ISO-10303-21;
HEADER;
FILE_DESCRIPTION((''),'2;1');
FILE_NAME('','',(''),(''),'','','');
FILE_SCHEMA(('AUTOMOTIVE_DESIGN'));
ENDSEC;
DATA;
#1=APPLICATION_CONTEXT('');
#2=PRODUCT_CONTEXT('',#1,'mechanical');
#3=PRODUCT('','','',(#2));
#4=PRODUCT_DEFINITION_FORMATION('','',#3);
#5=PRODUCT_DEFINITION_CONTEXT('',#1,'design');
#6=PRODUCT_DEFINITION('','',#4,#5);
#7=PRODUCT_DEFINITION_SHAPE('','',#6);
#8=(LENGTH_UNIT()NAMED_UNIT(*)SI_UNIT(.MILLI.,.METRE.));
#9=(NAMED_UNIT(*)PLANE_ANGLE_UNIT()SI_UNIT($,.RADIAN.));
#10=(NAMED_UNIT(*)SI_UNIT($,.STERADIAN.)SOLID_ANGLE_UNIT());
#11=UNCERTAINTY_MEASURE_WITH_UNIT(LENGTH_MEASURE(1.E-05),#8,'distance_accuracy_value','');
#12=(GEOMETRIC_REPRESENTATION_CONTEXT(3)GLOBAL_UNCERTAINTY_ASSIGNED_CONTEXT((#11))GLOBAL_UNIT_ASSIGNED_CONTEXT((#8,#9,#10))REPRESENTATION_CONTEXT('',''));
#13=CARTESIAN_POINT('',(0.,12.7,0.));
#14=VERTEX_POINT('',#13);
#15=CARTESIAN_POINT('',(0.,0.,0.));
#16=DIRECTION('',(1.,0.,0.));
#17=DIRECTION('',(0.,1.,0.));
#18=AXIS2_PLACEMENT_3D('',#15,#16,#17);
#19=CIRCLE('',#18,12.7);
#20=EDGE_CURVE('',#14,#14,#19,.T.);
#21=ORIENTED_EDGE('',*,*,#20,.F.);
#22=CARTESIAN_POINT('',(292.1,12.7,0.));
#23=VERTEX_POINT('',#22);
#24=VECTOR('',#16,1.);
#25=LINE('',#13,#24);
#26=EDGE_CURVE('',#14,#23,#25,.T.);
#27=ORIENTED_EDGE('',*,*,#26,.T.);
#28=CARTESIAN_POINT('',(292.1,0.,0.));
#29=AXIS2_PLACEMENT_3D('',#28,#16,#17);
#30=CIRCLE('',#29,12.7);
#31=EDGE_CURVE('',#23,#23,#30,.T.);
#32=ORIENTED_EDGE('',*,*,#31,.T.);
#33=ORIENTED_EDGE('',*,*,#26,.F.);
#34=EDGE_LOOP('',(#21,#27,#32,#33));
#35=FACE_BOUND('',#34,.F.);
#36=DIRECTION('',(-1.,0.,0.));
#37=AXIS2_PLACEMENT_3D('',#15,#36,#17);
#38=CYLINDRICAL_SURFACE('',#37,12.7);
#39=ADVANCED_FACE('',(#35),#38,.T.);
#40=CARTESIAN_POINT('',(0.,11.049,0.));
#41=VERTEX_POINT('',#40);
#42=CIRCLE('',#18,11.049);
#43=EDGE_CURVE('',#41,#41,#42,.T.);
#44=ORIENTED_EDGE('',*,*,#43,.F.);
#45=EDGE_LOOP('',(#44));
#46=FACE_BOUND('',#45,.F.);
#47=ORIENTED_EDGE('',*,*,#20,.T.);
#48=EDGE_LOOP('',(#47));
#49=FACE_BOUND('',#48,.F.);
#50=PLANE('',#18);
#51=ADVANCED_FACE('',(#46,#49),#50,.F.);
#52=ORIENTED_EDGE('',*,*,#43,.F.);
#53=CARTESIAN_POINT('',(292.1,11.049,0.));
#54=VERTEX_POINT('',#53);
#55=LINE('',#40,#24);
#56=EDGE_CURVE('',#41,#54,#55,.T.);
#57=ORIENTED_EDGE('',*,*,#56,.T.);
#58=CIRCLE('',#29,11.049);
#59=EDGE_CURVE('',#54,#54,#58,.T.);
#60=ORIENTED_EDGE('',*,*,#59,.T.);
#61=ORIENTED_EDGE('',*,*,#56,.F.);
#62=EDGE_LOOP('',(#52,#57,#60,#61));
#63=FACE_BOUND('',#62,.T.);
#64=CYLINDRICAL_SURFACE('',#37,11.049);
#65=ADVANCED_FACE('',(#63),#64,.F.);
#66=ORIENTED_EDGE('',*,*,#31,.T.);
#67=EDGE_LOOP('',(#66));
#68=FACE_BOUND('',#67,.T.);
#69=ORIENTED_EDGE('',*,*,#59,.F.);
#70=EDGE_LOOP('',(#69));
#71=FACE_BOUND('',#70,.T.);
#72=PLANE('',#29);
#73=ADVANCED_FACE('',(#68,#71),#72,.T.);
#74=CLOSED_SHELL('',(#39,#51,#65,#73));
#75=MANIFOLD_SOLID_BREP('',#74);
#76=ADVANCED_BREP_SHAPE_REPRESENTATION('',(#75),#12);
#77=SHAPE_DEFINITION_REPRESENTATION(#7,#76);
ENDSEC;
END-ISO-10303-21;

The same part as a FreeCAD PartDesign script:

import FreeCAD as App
import Part
import Sketcher
from FreeCAD import Vector
Q = App.Units.Quantity

doc = App.newDocument("Part")
body = doc.addObject("PartDesign::Body", "Body")

sketch1 = body.newObject("Sketcher::SketchObject", "Sketch")
sketch1.AttachmentSupport = (doc.getObject("YZ_Plane"), [""])
sketch1.MapMode = "FlatFace"
sketch1.addGeometry([
    Part.Circle(Vector(0, 0, 0), Vector(0, 0, 1), 13),
    Part.Circle(Vector(0, 0, 0), Vector(0, 0, 1), 11),
], False)
sketch1.addConstraint([
    Sketcher.Constraint("Coincident", 0, 3, -1, 1),
    Sketcher.Constraint("Coincident", 1, 3, -1, 1),
    Sketcher.Constraint("Diameter", 0, Q("1 in")),
    Sketcher.Constraint("Diameter", 1, Q("0.87 in")),
])
pad1 = body.newObject("PartDesign::Pad", "Pad")
pad1.Profile = sketch1
pad1.Length = Q("11.5 in")

doc.recompute()
